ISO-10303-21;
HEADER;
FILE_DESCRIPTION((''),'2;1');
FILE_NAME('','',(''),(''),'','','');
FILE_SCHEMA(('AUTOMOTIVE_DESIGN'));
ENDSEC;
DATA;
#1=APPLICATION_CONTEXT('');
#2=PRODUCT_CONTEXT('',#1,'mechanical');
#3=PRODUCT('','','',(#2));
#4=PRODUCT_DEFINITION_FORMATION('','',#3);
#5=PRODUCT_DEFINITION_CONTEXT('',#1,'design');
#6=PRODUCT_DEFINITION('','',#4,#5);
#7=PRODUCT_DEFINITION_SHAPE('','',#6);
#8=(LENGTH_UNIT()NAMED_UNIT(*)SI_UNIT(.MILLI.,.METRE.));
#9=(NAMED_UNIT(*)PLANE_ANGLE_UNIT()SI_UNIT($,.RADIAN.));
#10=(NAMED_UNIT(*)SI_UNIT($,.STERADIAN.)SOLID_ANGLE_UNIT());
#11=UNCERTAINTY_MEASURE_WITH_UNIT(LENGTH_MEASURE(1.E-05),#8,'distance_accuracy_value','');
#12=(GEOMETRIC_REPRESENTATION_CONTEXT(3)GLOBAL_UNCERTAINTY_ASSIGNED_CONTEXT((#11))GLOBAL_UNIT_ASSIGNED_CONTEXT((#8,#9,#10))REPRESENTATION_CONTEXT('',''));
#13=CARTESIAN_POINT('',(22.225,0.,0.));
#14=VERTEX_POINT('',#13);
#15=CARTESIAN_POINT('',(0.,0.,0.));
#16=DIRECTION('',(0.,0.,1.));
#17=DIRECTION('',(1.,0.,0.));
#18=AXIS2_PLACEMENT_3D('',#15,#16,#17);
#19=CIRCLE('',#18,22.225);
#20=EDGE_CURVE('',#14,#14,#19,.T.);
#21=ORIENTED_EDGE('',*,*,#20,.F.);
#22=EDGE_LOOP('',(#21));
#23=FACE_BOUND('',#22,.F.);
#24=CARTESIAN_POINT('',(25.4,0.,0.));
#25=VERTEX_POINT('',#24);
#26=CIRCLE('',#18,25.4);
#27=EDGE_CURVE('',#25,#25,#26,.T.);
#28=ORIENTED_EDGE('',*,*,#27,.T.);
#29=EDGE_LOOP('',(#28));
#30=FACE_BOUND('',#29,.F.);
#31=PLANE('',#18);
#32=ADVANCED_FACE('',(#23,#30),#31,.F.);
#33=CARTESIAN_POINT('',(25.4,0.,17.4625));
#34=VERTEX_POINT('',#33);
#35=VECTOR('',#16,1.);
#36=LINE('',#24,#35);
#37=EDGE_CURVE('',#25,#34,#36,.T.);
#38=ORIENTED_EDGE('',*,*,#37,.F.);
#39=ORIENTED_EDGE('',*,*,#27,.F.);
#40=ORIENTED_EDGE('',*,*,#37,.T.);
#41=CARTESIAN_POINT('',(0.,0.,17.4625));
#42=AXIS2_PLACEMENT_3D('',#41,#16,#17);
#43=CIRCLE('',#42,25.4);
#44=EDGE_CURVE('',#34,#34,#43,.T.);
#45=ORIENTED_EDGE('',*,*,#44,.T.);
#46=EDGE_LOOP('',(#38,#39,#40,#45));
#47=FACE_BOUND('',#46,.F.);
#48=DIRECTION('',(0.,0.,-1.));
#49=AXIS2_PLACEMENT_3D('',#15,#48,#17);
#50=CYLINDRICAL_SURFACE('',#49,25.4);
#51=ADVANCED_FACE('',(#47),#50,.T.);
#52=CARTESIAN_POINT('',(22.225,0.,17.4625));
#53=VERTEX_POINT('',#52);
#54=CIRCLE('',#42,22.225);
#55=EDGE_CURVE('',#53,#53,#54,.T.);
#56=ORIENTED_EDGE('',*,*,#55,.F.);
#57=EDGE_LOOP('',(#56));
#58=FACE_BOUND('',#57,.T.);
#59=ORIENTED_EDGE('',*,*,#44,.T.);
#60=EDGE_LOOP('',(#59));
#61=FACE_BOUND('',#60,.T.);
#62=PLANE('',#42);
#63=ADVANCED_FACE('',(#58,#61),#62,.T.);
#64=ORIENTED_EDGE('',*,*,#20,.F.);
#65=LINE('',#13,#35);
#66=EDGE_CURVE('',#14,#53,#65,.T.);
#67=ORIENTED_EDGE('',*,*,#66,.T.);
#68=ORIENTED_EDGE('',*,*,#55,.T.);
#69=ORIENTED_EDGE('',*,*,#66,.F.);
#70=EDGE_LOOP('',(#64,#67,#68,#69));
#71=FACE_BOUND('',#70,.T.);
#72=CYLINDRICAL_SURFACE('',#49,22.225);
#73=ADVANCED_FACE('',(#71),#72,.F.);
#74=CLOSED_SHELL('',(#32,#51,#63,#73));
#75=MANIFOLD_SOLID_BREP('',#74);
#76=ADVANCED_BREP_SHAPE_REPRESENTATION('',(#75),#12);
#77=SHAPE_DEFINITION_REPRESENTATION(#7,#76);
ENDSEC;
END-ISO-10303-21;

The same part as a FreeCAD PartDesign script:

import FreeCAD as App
import Part
import Sketcher
Q = App.Units.Quantity

doc = App.newDocument("Part")
params = doc.addObject("Spreadsheet::Sheet", "Params")
for row, (alias, value) in enumerate([
    ("sketch1_diameter", "2 in"),
    ("sketch1_diameter2", "1.75 in"),
    ("pad1_length", "0.6875 in"),
], start=1):
    params.set(f"A{row}", alias)
    params.set(f"B{row}", "=" + value)
    params.setAlias(f"B{row}", alias)

body = doc.addObject("PartDesign::Body", "Body")

# Sketch on XY plane
sketch1 = body.newObject("Sketcher::SketchObject", "Sketch")
sketch1.AttachmentSupport = (doc.getObject("XY_Plane"), [""])
sketch1.MapMode = "FlatFace"
sketch1.addGeometry(Part.Circle(App.Vector(0, 0, 0), App.Vector(0, 0, 1), 25), False)
sketch1.addGeometry(Part.Circle(App.Vector(0, 0, 0), App.Vector(0, 0, 1), 22), False)
sketch1.addConstraint(Sketcher.Constraint("Coincident", 0, 3, -1, 1))
sketch1.addConstraint(Sketcher.Constraint("Coincident", 1, 3, -1, 1))
sketch1.addConstraint(Sketcher.Constraint("Diameter", 0, Q("2 in")))
sketch1.addConstraint(Sketcher.Constraint("Diameter", 1, Q("1.75 in")))
sketch1.setExpression("Constraints[2]", "Params.sketch1_diameter")
sketch1.setExpression("Constraints[3]", "Params.sketch1_diameter2")
pad1 = body.newObject("PartDesign::Pad", "Pad")
pad1.Profile = sketch1
pad1.setExpression("Length", "Params.pad1_length")

doc.recompute()
